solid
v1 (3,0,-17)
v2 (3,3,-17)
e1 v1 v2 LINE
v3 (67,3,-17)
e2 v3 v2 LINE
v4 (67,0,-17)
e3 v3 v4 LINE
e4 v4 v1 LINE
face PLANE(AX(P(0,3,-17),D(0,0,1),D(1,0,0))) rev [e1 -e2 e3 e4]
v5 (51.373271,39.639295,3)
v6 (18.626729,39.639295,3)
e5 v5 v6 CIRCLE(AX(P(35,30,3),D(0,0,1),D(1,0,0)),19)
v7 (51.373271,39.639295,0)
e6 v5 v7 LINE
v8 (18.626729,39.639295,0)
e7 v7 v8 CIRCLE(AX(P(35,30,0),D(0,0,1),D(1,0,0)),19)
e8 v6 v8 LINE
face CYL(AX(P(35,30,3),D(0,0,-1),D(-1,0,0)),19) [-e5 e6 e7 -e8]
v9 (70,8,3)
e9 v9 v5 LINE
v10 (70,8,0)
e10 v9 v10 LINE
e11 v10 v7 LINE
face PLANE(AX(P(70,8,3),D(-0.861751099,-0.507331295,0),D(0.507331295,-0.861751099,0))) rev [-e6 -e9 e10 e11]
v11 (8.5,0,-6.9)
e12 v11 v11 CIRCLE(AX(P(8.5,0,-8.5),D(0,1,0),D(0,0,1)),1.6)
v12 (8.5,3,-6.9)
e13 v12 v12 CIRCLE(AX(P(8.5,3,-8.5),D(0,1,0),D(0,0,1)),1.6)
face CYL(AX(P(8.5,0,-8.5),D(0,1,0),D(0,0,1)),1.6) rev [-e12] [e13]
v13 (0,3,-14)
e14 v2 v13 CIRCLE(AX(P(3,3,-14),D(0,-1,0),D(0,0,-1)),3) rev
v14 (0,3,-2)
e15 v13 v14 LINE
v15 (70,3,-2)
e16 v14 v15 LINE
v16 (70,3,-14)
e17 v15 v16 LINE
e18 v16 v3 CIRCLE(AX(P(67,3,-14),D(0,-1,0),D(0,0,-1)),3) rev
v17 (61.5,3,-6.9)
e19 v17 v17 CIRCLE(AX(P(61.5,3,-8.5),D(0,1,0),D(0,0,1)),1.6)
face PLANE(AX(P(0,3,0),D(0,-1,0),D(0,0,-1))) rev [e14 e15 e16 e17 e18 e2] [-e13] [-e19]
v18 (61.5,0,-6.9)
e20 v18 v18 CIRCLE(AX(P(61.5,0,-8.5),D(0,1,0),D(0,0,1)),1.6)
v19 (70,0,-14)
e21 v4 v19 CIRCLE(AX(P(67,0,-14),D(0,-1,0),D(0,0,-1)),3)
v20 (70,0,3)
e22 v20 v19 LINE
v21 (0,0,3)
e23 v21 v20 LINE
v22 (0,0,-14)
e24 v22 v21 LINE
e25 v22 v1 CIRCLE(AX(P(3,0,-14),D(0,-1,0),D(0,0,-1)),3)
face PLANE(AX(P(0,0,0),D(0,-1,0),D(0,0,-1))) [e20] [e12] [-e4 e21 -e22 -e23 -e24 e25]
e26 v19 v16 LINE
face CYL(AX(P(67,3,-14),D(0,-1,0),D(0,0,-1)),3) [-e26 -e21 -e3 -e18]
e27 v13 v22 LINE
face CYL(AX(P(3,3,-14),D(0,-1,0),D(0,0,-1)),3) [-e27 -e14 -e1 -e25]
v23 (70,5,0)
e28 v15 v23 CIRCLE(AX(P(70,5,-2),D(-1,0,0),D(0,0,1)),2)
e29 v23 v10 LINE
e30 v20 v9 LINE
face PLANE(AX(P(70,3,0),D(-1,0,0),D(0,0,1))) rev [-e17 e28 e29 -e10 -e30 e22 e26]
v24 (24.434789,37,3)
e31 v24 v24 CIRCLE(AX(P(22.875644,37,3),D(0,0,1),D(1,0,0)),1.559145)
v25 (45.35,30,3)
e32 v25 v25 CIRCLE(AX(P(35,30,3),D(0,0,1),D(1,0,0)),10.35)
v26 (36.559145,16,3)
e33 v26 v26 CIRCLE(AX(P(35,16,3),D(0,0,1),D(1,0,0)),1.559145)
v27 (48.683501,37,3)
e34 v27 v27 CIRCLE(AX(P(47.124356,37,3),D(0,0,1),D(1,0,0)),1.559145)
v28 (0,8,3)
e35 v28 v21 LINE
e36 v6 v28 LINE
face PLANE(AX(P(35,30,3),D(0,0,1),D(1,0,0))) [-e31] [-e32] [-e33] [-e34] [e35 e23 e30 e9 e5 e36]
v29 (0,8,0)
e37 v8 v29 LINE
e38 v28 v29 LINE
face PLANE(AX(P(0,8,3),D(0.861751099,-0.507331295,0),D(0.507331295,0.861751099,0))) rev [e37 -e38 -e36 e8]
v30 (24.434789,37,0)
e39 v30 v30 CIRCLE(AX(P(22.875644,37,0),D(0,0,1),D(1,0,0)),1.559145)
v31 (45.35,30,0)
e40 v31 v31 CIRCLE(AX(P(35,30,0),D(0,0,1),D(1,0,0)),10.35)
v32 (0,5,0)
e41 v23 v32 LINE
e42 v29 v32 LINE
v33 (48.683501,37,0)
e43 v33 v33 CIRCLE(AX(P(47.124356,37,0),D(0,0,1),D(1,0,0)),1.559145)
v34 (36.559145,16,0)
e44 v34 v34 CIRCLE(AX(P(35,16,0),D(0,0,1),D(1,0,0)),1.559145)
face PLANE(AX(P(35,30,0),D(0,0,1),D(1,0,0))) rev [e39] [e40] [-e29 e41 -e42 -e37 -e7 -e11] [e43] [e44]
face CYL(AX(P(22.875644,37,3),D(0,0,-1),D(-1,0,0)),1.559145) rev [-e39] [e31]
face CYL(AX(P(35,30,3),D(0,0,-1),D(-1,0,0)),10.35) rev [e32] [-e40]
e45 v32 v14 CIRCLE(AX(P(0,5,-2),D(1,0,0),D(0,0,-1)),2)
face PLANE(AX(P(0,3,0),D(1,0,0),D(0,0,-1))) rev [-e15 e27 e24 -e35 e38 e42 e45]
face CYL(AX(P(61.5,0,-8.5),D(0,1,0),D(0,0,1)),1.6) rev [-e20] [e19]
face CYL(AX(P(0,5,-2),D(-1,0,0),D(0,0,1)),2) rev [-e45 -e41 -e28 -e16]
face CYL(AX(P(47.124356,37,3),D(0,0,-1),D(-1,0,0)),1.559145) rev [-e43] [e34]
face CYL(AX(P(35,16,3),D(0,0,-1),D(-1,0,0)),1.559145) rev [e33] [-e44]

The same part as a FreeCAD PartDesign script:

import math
import FreeCAD as App
import Part
import Sketcher
from FreeCAD import Vector
Q = App.Units.Quantity


def edges_at(feature, points):
    """Names of the edges that pass closest to the given points."""
    edges = feature.Shape.Edges
    near = lambda p: min(range(len(edges)), key=lambda i: edges[i].distToShape(Part.Vertex(*p))[0])
    return sorted({f"Edge{near(p) + 1}" for p in points})

doc = App.newDocument("Part")
params = doc.addObject("Spreadsheet::Sheet", "Params")
for row, (alias, value) in enumerate([
    ("sketch1_width", "70 mm"),
    ("sketch1_height", "17 mm"),
    ("pad1_length", "3 mm"),
    ("sketch2_radius", "19 mm"),
    ("sketch2_diameter", "20.7 mm"),
    ("sketch2_width", "70 mm"),
    ("sketch2_height", "8 mm"),
    ("pad2_length", "3 mm"),
    ("sketch3_diameter", "3.2 mm"),
    ("fillet_radius", "3 mm"),
    ("fillet2_radius", "2 mm"),
], start=1):
    params.set(f"A{row}", alias)
    params.set(f"B{row}", "=" + value)
    params.setAlias(f"B{row}", alias)

body = doc.addObject("PartDesign::Body", "Body")

# Sketch on XZ plane
sketch1 = doc.addObject("Sketcher::SketchObject", "Sketch")
body.addObject(sketch1)
sketch1.AttachmentSupport = (doc.XZ_Plane, [""])
sketch1.MapMode = "FlatFace"
sketch1.addGeometry(Part.LineSegment(Vector(0, -17, 0), Vector(0, 0, 0)), False)
sketch1.addGeometry(Part.LineSegment(Vector(0, 0, 0), Vector(70, 0, 0)), False)
sketch1.addGeometry(Part.LineSegment(Vector(70, 0, 0), Vector(70, -17, 0)), False)
sketch1.addGeometry(Part.LineSegment(Vector(70, -17, 0), Vector(0, -17, 0)), False)
sketch1.addConstraint(Sketcher.Constraint("Coincident", 0, 2, 1, 1))
sketch1.addConstraint(Sketcher.Constraint("Coincident", 1, 2, 2, 1))
sketch1.addConstraint(Sketcher.Constraint("Coincident", 2, 2, 3, 1))
sketch1.addConstraint(Sketcher.Constraint("Coincident", 3, 2, 0, 1))
sketch1.addConstraint(Sketcher.Constraint("Vertical", 0))
sketch1.addConstraint(Sketcher.Constraint("Horizontal", 1))
sketch1.addConstraint(Sketcher.Constraint("Vertical", 2))
sketch1.addConstraint(Sketcher.Constraint("Horizontal", 3))
sketch1.addConstraint(Sketcher.Constraint("Coincident", 0, 2, -1, 1))
sketch1.addConstraint(Sketcher.Constraint("DistanceX", 1, 1, 1, 2, Q("70 mm")))
sketch1.addConstraint(Sketcher.Constraint("DistanceY", 0, 1, 0, 2, Q("17 mm")))
sketch1.setExpression("Constraints[9]", "Params.sketch1_width")
sketch1.setExpression("Constraints[10]", "Params.sketch1_height")
pad1 = doc.addObject("PartDesign::Pad", "Pad")
body.addObject(pad1)
pad1.Profile = sketch1
pad1.setExpression("Length", "Params.pad1_length")
pad1.Reversed = True

# Sketch on XY plane
sketch2 = doc.addObject("Sketcher::SketchObject", "Sketch001")
body.addObject(sketch2)
sketch2.AttachmentSupport = (doc.XY_Plane, [""])
sketch2.MapMode = "FlatFace"
sketch2.addGeometry(Part.LineSegment(Vector(0, 0, 0), Vector(70, 0, 0)), False)
sketch2.addGeometry(Part.LineSegment(Vector(70, 0, 0), Vector(70, 8, 0)), False)
sketch2.addGeometry(Part.LineSegment(Vector(70, 8, 0), Vector(51.4, 39.6, 0)), False)
sketch2.addGeometry(Part.ArcOfCircle(Part.Circle(Vector(35, 30, 0), Vector(0, 0, 1), 19), math.radians(30), math.radians(150)), False)
sketch2.addGeometry(Part.LineSegment(Vector(18.6, 39.6, 0), Vector(0, 8, 0)), False)
sketch2.addGeometry(Part.LineSegment(Vector(0, 8, 0), Vector(0, 0, 0)), False)
sketch2.addGeometry(Part.Circle(Vector(35, 16, 0), Vector(0, 0, 1), 1.6), False)
sketch2.addGeometry(Part.Circle(Vector(35, 30, 0), Vector(0, 0, 1), 10.3), False)
sketch2.addGeometry(Part.Circle(Vector(22.9, 37, 0), Vector(0, 0, 1), 1.6), False)
sketch2.addGeometry(Part.Circle(Vector(47.1, 37, 0), Vector(0, 0, 1), 1.6), False)
sketch2.addConstraint(Sketcher.Constraint("Coincident", 0, 2, 1, 1))
sketch2.addConstraint(Sketcher.Constraint("Coincident", 1, 2, 2, 1))
sketch2.addConstraint(Sketcher.Constraint("Tangent", 2, 2, 3, 1))
sketch2.addConstraint(Sketcher.Constraint("Tangent", 3, 2, 4, 1))
sketch2.addConstraint(Sketcher.Constraint("Coincident", 4, 2, 5, 1))
sketch2.addConstraint(Sketcher.Constraint("Coincident", 5, 2, 0, 1))
sketch2.addConstraint(Sketcher.Constraint("Horizontal", 0))
sketch2.addConstraint(Sketcher.Constraint("Vertical", 1))
sketch2.addConstraint(Sketcher.Constraint("Vertical", 5))
sketch2.addConstraint(Sketcher.Constraint("Coincident", 5, 2, -1, 1))
sketch2.addConstraint(Sketcher.Constraint("Coincident", 7, 3, 3, 3))
sketch2.addConstraint(Sketcher.Constraint("Equal", 6, 8))
sketch2.addConstraint(Sketcher.Constraint("Equal", 8, 9))
sketch2.addConstraint(Sketcher.Constraint("Horizontal", 8, 3, 9, 3))
sketch2.addConstraint(Sketcher.Constraint("Horizontal", 2, 2, 3, 2))
sketch2.addConstraint(Sketcher.Constraint("Horizontal", 1, 2, 4, 2))
sketch2.addConstraint(Sketcher.Constraint("Vertical", 3, 3, 6, 3))
sketch2.addConstraint(Sketcher.Constraint("Radius", 3, Q("19 mm")))
sketch2.addConstraint(Sketcher.Constraint("Diameter", 7, Q("20.7 mm")))
sketch2.addConstraint(Sketcher.Constraint("DistanceX", 0, 1, 0, 2, Q("70 mm")))
sketch2.addConstraint(Sketcher.Constraint("DistanceY", 1, 1, 1, 2, Q("8 mm")))
sketch2.addConstraint(Sketcher.Constraint("DistanceY", -1, 1, 3, 3, Q("30 mm")))
sketch2.addConstraint(Sketcher.Constraint("DistanceY", -1, 1, 6, 3, Q("16 mm")))
sketch2.addConstraint(Sketcher.Constraint("DistanceY", -1, 1, 8, 3, Q("37 mm")))
sketch2.addConstraint(Sketcher.Constraint("Diameter", 6, Q("3.11829 mm")))
sketch2.addConstraint(Sketcher.Constraint("DistanceX", 8, 3, 9, 3, Q("24.248711 mm")))
sketch2.addConstraint(Sketcher.Constraint("DistanceX", -1, 1, 8, 3, Q("22.875644 mm")))
sketch2.setExpression("Constraints[17]", "Params.sketch2_radius")
sketch2.setExpression("Constraints[18]", "Params.sketch2_diameter")
sketch2.setExpression("Constraints[19]", "Params.sketch2_width")
sketch2.setExpression("Constraints[20]", "Params.sketch2_height")
pad2 = doc.addObject("PartDesign::Pad", "Pad001")
body.addObject(pad2)
pad2.Profile = sketch2
pad2.setExpression("Length", "Params.pad2_length")

# Sketch on XZ plane
sketch3 = doc.addObject("Sketcher::SketchObject", "Sketch002")
body.addObject(sketch3)
sketch3.AttachmentSupport = (doc.XZ_Plane, [""])
sketch3.MapMode = "FlatFace"
sketch3.AttachmentOffset = App.Placement(Vector(0, 0, -3), App.Rotation())
sketch3.addGeometry(Part.Circle(Vector(8.5, -8.5, 0), Vector(0, 0, 1), 1.6), False)
sketch3.addGeometry(Part.Circle(Vector(61.5, -8.5, 0), Vector(0, 0, 1), 1.6), False)
sketch3.addConstraint(Sketcher.Constraint("Equal", 0, 1))
sketch3.addConstraint(Sketcher.Constraint("Horizontal", 0, 3, 1, 3))
sketch3.addConstraint(Sketcher.Constraint("Diameter", 0, Q("3.2 mm")))
sketch3.addConstraint(Sketcher.Constraint("DistanceX", 0, 3, 1, 3, Q("53 mm")))
sketch3.addConstraint(Sketcher.Constraint("DistanceX", -1, 1, 0, 3, Q("8.5 mm")))
sketch3.addConstraint(Sketcher.Constraint("DistanceY", 0, 3, -1, 1, Q("8.5 mm")))
sketch3.setExpression("Constraints[2]", "Params.sketch3_diameter")
pocket1 = doc.addObject("PartDesign::Pocket", "Pocket")
body.addObject(pocket1)
pocket1.Profile = sketch3
pocket1.Type = "ThroughAll"
pocket1.Reversed = True
doc.recompute()

fillet = doc.addObject("PartDesign::Fillet", "Fillet")
body.addObject(fillet)
fillet.Base = (pocket1, edges_at(pocket1, [(70, 1.5, -17), (0, 1.5, -17)]))
fillet.setExpression("Radius", "Params.fillet_radius")
doc.recompute()

fillet2 = doc.addObject("PartDesign::Fillet", "Fillet001")
body.addObject(fillet2)
fillet2.Base = (fillet, edges_at(fillet, [(35, 3, 0)]))
fillet2.setExpression("Radius", "Params.fillet2_radius")

doc.recompute()
